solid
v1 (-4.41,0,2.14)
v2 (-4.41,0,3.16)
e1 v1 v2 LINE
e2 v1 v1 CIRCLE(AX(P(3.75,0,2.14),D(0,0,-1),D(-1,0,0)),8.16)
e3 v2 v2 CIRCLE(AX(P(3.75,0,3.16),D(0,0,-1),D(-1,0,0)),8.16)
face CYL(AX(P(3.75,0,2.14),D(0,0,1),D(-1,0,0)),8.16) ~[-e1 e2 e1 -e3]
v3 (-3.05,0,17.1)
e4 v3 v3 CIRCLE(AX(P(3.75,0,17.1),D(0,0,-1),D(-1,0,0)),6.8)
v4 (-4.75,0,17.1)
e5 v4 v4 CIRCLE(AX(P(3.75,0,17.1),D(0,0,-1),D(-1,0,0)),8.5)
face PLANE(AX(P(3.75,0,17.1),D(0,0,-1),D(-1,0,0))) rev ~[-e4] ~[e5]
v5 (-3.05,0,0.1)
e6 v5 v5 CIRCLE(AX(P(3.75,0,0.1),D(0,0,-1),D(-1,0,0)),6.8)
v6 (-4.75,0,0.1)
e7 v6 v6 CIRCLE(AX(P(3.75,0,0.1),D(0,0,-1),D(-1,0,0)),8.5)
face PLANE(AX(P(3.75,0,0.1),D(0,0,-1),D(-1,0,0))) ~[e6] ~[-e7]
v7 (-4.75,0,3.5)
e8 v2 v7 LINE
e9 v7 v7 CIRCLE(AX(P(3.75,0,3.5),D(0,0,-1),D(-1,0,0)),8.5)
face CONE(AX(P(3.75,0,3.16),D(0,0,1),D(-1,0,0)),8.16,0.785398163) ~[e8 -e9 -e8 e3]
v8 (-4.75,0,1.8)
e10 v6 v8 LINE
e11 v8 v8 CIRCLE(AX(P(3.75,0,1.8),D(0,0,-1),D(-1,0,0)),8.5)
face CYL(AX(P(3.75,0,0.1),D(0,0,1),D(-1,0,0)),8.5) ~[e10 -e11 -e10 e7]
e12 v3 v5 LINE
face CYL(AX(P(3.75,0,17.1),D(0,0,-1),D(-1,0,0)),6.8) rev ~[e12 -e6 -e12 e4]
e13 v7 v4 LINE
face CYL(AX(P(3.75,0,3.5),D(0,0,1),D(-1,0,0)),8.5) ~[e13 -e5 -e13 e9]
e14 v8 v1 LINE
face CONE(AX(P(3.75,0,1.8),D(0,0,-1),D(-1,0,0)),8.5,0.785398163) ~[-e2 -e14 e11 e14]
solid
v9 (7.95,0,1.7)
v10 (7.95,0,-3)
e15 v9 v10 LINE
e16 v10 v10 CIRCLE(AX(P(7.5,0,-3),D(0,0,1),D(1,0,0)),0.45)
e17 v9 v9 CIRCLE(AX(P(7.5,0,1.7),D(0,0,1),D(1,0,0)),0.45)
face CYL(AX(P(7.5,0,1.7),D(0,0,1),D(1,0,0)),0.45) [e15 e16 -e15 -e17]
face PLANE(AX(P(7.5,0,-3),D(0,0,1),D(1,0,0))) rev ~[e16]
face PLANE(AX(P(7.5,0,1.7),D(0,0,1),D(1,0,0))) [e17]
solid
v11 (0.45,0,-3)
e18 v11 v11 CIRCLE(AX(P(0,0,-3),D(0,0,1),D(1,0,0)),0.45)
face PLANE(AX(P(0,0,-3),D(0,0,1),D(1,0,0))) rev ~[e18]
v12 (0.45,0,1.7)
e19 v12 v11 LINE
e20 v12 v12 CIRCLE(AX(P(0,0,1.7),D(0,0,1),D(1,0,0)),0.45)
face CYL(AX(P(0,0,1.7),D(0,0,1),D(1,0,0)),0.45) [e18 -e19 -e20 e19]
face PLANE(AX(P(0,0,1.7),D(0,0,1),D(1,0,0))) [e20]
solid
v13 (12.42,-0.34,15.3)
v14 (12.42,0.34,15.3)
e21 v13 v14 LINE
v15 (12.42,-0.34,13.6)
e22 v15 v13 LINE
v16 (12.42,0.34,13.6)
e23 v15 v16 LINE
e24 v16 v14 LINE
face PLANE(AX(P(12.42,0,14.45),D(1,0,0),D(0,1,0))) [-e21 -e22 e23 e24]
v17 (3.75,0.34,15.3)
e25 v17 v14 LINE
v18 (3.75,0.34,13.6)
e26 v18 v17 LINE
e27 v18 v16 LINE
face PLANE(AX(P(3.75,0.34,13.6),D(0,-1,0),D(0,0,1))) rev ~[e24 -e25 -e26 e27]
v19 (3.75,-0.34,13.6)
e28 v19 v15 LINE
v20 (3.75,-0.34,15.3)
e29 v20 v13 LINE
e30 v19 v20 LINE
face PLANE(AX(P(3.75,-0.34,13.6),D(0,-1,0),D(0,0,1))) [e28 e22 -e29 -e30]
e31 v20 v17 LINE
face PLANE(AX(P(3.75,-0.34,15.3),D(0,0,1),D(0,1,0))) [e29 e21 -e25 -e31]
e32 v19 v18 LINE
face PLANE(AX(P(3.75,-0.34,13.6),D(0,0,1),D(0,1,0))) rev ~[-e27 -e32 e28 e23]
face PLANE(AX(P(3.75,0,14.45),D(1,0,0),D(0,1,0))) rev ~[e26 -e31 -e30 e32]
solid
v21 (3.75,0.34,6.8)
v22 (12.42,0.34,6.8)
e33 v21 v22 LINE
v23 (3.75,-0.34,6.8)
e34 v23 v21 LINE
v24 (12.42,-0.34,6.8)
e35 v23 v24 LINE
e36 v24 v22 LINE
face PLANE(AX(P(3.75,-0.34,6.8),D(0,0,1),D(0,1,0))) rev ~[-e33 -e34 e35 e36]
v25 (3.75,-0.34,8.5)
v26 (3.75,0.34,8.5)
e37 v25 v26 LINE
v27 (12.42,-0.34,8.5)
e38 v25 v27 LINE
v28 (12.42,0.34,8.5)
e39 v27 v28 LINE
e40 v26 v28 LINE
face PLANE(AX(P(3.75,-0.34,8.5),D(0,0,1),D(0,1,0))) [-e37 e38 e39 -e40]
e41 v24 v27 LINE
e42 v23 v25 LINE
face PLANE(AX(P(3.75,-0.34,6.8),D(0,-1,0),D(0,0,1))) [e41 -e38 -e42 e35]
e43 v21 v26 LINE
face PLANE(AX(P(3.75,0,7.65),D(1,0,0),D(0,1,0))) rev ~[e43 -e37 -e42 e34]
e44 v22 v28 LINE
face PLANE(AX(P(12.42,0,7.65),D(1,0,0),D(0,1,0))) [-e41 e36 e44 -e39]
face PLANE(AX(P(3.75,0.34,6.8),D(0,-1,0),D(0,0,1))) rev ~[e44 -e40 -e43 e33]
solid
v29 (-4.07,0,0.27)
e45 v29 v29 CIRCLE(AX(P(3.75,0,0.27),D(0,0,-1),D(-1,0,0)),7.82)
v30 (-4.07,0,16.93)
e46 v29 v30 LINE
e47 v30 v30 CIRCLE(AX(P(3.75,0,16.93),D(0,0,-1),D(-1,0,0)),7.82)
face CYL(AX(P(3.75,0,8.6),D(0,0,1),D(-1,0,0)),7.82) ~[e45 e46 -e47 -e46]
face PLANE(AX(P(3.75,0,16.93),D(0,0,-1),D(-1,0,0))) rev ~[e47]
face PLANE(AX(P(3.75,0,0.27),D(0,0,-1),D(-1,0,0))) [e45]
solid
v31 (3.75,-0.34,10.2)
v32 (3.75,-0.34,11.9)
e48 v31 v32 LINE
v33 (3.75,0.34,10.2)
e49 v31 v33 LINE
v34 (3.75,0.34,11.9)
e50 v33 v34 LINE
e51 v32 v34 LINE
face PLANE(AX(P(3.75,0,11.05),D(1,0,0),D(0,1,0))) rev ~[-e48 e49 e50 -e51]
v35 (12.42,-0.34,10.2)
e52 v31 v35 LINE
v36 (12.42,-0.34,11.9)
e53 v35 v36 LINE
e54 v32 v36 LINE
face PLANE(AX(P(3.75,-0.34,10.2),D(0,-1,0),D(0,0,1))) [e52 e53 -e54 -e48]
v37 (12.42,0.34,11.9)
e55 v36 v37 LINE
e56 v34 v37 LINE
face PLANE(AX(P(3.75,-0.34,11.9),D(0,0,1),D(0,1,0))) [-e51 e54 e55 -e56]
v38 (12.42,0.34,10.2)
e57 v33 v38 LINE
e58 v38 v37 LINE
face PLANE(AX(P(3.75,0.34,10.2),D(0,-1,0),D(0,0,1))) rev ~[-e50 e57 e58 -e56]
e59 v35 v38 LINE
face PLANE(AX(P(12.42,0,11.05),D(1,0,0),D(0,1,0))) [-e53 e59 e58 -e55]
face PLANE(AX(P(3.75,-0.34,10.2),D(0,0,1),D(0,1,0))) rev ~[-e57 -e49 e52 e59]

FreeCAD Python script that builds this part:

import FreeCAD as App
import Part
import Sketcher

V = App.Vector


def add_polygon(sketch, points):
    """Adds a closed chain of lines whose ends are joined by coincident constraints."""
    first, n = sketch.GeometryCount, len(points)
    for a, b in zip(points, points[1:] + points[:1]):
        sketch.addGeometry(Part.LineSegment(App.Vector(*a, 0), App.Vector(*b, 0)), False)
    for i in range(n):
        sketch.addConstraint(Sketcher.Constraint("Coincident", first + i, 2, first + (i + 1) % n, 1))

doc = App.newDocument("Part")
body = doc.addObject("PartDesign::Body", "Body")

# Sketch on XZ plane
sketch1 = body.newObject("Sketcher::SketchObject", "Sketch")
sketch1.AttachmentSupport = (doc.getObject("XZ_Plane"), [""])
sketch1.MapMode = "FlatFace"
add_polygon(sketch1, [(-4.75, 1.8), (-4.75, 0.1), (-3.05, 0.1), (-3.05, 17.1), (-4.75, 17.1), (-4.75, 3.5), (-4.41, 3.16), (-4.41, 2.14)])  # lines 0-7
sketch1.addGeometry(Part.LineSegment(V(3.75, 17.1, 0), V(3.75, 0.1, 0)), True)  # axis
sketch1.addConstraint(Sketcher.Constraint("Vertical", 0))
sketch1.addConstraint(Sketcher.Constraint("Horizontal", 1))
sketch1.addConstraint(Sketcher.Constraint("Vertical", 2))
sketch1.addConstraint(Sketcher.Constraint("Horizontal", 3))
sketch1.addConstraint(Sketcher.Constraint("Vertical", 4))
sketch1.addConstraint(Sketcher.Constraint("Vertical", 6))
sketch1.addConstraint(Sketcher.Constraint("Vertical", 8))
sketch1.addConstraint(Sketcher.Constraint("Perpendicular", 5, 7))
sketch1.addConstraint(Sketcher.Constraint("Horizontal", 3, 2, 8, 1))
sketch1.addConstraint(Sketcher.Constraint("Horizontal", 1, 2, 8, 2))
sketch1.addConstraint(Sketcher.Constraint("Vertical", 0, 2, 3, 2))
sketch1.addConstraint(Sketcher.Constraint("Equal", 3, 0))
sketch1.addConstraint(Sketcher.Constraint("Equal", 5, 7))
sketch1.addConstraint(Sketcher.Constraint("DistanceY", 2, 1, 2, 2, 17.0))
sketch1.addConstraint(Sketcher.Constraint("DistanceX", 1, 1, 1, 2, 1.7))
sketch1.addConstraint(Sketcher.Constraint("DistanceY", 4, 2, 4, 1, 13.6))
sketch1.addConstraint(Sketcher.Constraint("DistanceY", 6, 2, 6, 1, 1.02))
sketch1.addConstraint(Sketcher.Constraint("DistanceY", -1, 1, 0, 2, 0.1))
sketch1.addConstraint(Sketcher.Constraint("DistanceX", 2, 2, 8, 1, 6.8))
sketch1.addConstraint(Sketcher.Constraint("DistanceX", 0, 2, -1, 1, 4.75))
revolution = body.newObject("PartDesign::Revolution", "Revolution")
revolution.Profile = sketch1
revolution.ReferenceAxis = (sketch1, ["Axis0"])
revolution.Angle = 360
body2 = doc.addObject("PartDesign::Body", "Body001")

# Sketch on XZ plane
sketch2 = body2.newObject("Sketcher::SketchObject", "Sketch001")
sketch2.AttachmentSupport = (doc.getObject("XZ_Plane001"), [""])
sketch2.MapMode = "FlatFace"
add_polygon(sketch2, [(-4, 17), (-4, 0), (4, 0), (4, 17)])  # lines 0-3
sketch2.addGeometry(Part.LineSegment(V(4, 17, 0), V(4, 0, 0)), True)  # axis
sketch2.addConstraint(Sketcher.Constraint("Vertical", 0))
sketch2.addConstraint(Sketcher.Constraint("Horizontal", 1))
sketch2.addConstraint(Sketcher.Constraint("Vertical", 2))
sketch2.addConstraint(Sketcher.Constraint("Horizontal", 3))
sketch2.addConstraint(Sketcher.Constraint("Vertical", 4))
sketch2.addConstraint(Sketcher.Constraint("Coincident", 4, 1, 2, 2))
sketch2.addConstraint(Sketcher.Constraint("Horizontal", 0, 2, 4, 2))
sketch2.addConstraint(Sketcher.Constraint("DistanceX", 1, 1, 1, 2, 7.82))
sketch2.addConstraint(Sketcher.Constraint("DistanceY", 0, 2, 0, 1, 16.66))
sketch2.addConstraint(Sketcher.Constraint("DistanceX", 0, 2, -1, 1, 4.07))
sketch2.addConstraint(Sketcher.Constraint("DistanceY", -1, 1, 0, 2, 0.27))
revolution2 = body2.newObject("PartDesign::Revolution", "Revolution001")
revolution2.Profile = sketch2
revolution2.ReferenceAxis = (sketch2, ["Axis0"])
revolution2.Angle = 360
body3 = doc.addObject("PartDesign::Body", "Body002")
body3.AllowCompound = True

# Sketch on XY plane
sketch3 = body3.newObject("Sketcher::SketchObject", "Sketch002")
sketch3.AttachmentSupport = (doc.getObject("XY_Plane002"), [""])
sketch3.MapMode = "FlatFace"
sketch3.AttachmentOffset = App.Placement(V(0, 0, 1.7), App.Rotation())
sketch3.addGeometry(Part.Circle(V(0, 0, 0), V(0, 0, 1), 0.45), False)
sketch3.addGeometry(Part.Circle(V(7.5, 0, 0), V(0, 0, 1), 0.45), False)
sketch3.addConstraint(Sketcher.Constraint("Coincident", 0, 3, -1, 1))
sketch3.addConstraint(Sketcher.Constraint("Equal", 0, 1))
sketch3.addConstraint(Sketcher.Constraint("PointOnObject", 1, 3, -1))
sketch3.addConstraint(Sketcher.Constraint("Diameter", 0, 0.9))
sketch3.addConstraint(Sketcher.Constraint("DistanceX", -1, 1, 1, 3, 7.5))
pad1 = body3.newObject("PartDesign::Pad", "Pad")
pad1.Profile = sketch3
pad1.Length = 4.7
pad1.Reversed = True
body4 = doc.addObject("PartDesign::Body", "Body003")
body4.AllowCompound = True

# Sketch on YZ plane
sketch4 = body4.newObject("Sketcher::SketchObject", "Sketch003")
sketch4.AttachmentSupport = (doc.getObject("YZ_Plane003"), [""])
sketch4.MapMode = "FlatFace"
sketch4.AttachmentOffset = App.Placement(V(0, 0, 3.75), App.Rotation())
add_polygon(sketch4, [(-0.3, 8.5), (-0.3, 6.8), (0.3, 6.8), (0.3, 8.5)])  # lines 0-3
add_polygon(sketch4, [(-0.3, 11.9), (-0.3, 10.2), (0.3, 10.2), (0.3, 11.9)])  # lines 4-7
add_polygon(sketch4, [(-0.3, 15.3), (-0.3, 13.6), (0.3, 13.6), (0.3, 15.3)])  # lines 8-11
sketch4.addConstraint(Sketcher.Constraint("Vertical", 0))
sketch4.addConstraint(Sketcher.Constraint("Horizontal", 1))
sketch4.addConstraint(Sketcher.Constraint("Vertical", 2))
sketch4.addConstraint(Sketcher.Constraint("Horizontal", 3))
sketch4.addConstraint(Sketcher.Constraint("Vertical", 4))
sketch4.addConstraint(Sketcher.Constraint("Horizontal", 5))
sketch4.addConstraint(Sketcher.Constraint("Vertical", 6))
sketch4.addConstraint(Sketcher.Constraint("Horizontal", 7))
sketch4.addConstraint(Sketcher.Constraint("Vertical", 8))
sketch4.addConstraint(Sketcher.Constraint("Horizontal", 9))
sketch4.addConstraint(Sketcher.Constraint("Vertical", 10))
sketch4.addConstraint(Sketcher.Constraint("Horizontal", 11))
sketch4.addConstraint(Sketcher.Constraint("Vertical", 3, 2, 4, 2))
sketch4.addConstraint(Sketcher.Constraint("Vertical", 2, 2, 5, 2))
sketch4.addConstraint(Sketcher.Constraint("Vertical", 7, 2, 8, 2))
sketch4.addConstraint(Sketcher.Constraint("Vertical", 6, 2, 9, 2))
sketch4.addConstraint(Sketcher.Constraint("Equal", 2, 4))
sketch4.addConstraint(Sketcher.Constraint("Equal", 6, 8))
sketch4.addConstraint(Sketcher.Constraint("DistanceY", 0, 2, 0, 1, 1.7))
sketch4.addConstraint(Sketcher.Constraint("DistanceX", 1, 1, 1, 2, 0.68))
sketch4.addConstraint(Sketcher.Constraint("DistanceY", -1, 1, 0, 2, 6.8))
sketch4.addConstraint(Sketcher.Constraint("DistanceY", -1, 1, 4, 2, 10.2))
sketch4.addConstraint(Sketcher.Constraint("DistanceY", -1, 1, 8, 2, 13.6))
sketch4.addConstraint(Sketcher.Constraint("DistanceX", 0, 2, -1, 1, 0.34))
pad2 = body4.newObject("PartDesign::Pad", "Pad001")
pad2.Profile = sketch4
pad2.Length = 8.67

doc.recompute()
